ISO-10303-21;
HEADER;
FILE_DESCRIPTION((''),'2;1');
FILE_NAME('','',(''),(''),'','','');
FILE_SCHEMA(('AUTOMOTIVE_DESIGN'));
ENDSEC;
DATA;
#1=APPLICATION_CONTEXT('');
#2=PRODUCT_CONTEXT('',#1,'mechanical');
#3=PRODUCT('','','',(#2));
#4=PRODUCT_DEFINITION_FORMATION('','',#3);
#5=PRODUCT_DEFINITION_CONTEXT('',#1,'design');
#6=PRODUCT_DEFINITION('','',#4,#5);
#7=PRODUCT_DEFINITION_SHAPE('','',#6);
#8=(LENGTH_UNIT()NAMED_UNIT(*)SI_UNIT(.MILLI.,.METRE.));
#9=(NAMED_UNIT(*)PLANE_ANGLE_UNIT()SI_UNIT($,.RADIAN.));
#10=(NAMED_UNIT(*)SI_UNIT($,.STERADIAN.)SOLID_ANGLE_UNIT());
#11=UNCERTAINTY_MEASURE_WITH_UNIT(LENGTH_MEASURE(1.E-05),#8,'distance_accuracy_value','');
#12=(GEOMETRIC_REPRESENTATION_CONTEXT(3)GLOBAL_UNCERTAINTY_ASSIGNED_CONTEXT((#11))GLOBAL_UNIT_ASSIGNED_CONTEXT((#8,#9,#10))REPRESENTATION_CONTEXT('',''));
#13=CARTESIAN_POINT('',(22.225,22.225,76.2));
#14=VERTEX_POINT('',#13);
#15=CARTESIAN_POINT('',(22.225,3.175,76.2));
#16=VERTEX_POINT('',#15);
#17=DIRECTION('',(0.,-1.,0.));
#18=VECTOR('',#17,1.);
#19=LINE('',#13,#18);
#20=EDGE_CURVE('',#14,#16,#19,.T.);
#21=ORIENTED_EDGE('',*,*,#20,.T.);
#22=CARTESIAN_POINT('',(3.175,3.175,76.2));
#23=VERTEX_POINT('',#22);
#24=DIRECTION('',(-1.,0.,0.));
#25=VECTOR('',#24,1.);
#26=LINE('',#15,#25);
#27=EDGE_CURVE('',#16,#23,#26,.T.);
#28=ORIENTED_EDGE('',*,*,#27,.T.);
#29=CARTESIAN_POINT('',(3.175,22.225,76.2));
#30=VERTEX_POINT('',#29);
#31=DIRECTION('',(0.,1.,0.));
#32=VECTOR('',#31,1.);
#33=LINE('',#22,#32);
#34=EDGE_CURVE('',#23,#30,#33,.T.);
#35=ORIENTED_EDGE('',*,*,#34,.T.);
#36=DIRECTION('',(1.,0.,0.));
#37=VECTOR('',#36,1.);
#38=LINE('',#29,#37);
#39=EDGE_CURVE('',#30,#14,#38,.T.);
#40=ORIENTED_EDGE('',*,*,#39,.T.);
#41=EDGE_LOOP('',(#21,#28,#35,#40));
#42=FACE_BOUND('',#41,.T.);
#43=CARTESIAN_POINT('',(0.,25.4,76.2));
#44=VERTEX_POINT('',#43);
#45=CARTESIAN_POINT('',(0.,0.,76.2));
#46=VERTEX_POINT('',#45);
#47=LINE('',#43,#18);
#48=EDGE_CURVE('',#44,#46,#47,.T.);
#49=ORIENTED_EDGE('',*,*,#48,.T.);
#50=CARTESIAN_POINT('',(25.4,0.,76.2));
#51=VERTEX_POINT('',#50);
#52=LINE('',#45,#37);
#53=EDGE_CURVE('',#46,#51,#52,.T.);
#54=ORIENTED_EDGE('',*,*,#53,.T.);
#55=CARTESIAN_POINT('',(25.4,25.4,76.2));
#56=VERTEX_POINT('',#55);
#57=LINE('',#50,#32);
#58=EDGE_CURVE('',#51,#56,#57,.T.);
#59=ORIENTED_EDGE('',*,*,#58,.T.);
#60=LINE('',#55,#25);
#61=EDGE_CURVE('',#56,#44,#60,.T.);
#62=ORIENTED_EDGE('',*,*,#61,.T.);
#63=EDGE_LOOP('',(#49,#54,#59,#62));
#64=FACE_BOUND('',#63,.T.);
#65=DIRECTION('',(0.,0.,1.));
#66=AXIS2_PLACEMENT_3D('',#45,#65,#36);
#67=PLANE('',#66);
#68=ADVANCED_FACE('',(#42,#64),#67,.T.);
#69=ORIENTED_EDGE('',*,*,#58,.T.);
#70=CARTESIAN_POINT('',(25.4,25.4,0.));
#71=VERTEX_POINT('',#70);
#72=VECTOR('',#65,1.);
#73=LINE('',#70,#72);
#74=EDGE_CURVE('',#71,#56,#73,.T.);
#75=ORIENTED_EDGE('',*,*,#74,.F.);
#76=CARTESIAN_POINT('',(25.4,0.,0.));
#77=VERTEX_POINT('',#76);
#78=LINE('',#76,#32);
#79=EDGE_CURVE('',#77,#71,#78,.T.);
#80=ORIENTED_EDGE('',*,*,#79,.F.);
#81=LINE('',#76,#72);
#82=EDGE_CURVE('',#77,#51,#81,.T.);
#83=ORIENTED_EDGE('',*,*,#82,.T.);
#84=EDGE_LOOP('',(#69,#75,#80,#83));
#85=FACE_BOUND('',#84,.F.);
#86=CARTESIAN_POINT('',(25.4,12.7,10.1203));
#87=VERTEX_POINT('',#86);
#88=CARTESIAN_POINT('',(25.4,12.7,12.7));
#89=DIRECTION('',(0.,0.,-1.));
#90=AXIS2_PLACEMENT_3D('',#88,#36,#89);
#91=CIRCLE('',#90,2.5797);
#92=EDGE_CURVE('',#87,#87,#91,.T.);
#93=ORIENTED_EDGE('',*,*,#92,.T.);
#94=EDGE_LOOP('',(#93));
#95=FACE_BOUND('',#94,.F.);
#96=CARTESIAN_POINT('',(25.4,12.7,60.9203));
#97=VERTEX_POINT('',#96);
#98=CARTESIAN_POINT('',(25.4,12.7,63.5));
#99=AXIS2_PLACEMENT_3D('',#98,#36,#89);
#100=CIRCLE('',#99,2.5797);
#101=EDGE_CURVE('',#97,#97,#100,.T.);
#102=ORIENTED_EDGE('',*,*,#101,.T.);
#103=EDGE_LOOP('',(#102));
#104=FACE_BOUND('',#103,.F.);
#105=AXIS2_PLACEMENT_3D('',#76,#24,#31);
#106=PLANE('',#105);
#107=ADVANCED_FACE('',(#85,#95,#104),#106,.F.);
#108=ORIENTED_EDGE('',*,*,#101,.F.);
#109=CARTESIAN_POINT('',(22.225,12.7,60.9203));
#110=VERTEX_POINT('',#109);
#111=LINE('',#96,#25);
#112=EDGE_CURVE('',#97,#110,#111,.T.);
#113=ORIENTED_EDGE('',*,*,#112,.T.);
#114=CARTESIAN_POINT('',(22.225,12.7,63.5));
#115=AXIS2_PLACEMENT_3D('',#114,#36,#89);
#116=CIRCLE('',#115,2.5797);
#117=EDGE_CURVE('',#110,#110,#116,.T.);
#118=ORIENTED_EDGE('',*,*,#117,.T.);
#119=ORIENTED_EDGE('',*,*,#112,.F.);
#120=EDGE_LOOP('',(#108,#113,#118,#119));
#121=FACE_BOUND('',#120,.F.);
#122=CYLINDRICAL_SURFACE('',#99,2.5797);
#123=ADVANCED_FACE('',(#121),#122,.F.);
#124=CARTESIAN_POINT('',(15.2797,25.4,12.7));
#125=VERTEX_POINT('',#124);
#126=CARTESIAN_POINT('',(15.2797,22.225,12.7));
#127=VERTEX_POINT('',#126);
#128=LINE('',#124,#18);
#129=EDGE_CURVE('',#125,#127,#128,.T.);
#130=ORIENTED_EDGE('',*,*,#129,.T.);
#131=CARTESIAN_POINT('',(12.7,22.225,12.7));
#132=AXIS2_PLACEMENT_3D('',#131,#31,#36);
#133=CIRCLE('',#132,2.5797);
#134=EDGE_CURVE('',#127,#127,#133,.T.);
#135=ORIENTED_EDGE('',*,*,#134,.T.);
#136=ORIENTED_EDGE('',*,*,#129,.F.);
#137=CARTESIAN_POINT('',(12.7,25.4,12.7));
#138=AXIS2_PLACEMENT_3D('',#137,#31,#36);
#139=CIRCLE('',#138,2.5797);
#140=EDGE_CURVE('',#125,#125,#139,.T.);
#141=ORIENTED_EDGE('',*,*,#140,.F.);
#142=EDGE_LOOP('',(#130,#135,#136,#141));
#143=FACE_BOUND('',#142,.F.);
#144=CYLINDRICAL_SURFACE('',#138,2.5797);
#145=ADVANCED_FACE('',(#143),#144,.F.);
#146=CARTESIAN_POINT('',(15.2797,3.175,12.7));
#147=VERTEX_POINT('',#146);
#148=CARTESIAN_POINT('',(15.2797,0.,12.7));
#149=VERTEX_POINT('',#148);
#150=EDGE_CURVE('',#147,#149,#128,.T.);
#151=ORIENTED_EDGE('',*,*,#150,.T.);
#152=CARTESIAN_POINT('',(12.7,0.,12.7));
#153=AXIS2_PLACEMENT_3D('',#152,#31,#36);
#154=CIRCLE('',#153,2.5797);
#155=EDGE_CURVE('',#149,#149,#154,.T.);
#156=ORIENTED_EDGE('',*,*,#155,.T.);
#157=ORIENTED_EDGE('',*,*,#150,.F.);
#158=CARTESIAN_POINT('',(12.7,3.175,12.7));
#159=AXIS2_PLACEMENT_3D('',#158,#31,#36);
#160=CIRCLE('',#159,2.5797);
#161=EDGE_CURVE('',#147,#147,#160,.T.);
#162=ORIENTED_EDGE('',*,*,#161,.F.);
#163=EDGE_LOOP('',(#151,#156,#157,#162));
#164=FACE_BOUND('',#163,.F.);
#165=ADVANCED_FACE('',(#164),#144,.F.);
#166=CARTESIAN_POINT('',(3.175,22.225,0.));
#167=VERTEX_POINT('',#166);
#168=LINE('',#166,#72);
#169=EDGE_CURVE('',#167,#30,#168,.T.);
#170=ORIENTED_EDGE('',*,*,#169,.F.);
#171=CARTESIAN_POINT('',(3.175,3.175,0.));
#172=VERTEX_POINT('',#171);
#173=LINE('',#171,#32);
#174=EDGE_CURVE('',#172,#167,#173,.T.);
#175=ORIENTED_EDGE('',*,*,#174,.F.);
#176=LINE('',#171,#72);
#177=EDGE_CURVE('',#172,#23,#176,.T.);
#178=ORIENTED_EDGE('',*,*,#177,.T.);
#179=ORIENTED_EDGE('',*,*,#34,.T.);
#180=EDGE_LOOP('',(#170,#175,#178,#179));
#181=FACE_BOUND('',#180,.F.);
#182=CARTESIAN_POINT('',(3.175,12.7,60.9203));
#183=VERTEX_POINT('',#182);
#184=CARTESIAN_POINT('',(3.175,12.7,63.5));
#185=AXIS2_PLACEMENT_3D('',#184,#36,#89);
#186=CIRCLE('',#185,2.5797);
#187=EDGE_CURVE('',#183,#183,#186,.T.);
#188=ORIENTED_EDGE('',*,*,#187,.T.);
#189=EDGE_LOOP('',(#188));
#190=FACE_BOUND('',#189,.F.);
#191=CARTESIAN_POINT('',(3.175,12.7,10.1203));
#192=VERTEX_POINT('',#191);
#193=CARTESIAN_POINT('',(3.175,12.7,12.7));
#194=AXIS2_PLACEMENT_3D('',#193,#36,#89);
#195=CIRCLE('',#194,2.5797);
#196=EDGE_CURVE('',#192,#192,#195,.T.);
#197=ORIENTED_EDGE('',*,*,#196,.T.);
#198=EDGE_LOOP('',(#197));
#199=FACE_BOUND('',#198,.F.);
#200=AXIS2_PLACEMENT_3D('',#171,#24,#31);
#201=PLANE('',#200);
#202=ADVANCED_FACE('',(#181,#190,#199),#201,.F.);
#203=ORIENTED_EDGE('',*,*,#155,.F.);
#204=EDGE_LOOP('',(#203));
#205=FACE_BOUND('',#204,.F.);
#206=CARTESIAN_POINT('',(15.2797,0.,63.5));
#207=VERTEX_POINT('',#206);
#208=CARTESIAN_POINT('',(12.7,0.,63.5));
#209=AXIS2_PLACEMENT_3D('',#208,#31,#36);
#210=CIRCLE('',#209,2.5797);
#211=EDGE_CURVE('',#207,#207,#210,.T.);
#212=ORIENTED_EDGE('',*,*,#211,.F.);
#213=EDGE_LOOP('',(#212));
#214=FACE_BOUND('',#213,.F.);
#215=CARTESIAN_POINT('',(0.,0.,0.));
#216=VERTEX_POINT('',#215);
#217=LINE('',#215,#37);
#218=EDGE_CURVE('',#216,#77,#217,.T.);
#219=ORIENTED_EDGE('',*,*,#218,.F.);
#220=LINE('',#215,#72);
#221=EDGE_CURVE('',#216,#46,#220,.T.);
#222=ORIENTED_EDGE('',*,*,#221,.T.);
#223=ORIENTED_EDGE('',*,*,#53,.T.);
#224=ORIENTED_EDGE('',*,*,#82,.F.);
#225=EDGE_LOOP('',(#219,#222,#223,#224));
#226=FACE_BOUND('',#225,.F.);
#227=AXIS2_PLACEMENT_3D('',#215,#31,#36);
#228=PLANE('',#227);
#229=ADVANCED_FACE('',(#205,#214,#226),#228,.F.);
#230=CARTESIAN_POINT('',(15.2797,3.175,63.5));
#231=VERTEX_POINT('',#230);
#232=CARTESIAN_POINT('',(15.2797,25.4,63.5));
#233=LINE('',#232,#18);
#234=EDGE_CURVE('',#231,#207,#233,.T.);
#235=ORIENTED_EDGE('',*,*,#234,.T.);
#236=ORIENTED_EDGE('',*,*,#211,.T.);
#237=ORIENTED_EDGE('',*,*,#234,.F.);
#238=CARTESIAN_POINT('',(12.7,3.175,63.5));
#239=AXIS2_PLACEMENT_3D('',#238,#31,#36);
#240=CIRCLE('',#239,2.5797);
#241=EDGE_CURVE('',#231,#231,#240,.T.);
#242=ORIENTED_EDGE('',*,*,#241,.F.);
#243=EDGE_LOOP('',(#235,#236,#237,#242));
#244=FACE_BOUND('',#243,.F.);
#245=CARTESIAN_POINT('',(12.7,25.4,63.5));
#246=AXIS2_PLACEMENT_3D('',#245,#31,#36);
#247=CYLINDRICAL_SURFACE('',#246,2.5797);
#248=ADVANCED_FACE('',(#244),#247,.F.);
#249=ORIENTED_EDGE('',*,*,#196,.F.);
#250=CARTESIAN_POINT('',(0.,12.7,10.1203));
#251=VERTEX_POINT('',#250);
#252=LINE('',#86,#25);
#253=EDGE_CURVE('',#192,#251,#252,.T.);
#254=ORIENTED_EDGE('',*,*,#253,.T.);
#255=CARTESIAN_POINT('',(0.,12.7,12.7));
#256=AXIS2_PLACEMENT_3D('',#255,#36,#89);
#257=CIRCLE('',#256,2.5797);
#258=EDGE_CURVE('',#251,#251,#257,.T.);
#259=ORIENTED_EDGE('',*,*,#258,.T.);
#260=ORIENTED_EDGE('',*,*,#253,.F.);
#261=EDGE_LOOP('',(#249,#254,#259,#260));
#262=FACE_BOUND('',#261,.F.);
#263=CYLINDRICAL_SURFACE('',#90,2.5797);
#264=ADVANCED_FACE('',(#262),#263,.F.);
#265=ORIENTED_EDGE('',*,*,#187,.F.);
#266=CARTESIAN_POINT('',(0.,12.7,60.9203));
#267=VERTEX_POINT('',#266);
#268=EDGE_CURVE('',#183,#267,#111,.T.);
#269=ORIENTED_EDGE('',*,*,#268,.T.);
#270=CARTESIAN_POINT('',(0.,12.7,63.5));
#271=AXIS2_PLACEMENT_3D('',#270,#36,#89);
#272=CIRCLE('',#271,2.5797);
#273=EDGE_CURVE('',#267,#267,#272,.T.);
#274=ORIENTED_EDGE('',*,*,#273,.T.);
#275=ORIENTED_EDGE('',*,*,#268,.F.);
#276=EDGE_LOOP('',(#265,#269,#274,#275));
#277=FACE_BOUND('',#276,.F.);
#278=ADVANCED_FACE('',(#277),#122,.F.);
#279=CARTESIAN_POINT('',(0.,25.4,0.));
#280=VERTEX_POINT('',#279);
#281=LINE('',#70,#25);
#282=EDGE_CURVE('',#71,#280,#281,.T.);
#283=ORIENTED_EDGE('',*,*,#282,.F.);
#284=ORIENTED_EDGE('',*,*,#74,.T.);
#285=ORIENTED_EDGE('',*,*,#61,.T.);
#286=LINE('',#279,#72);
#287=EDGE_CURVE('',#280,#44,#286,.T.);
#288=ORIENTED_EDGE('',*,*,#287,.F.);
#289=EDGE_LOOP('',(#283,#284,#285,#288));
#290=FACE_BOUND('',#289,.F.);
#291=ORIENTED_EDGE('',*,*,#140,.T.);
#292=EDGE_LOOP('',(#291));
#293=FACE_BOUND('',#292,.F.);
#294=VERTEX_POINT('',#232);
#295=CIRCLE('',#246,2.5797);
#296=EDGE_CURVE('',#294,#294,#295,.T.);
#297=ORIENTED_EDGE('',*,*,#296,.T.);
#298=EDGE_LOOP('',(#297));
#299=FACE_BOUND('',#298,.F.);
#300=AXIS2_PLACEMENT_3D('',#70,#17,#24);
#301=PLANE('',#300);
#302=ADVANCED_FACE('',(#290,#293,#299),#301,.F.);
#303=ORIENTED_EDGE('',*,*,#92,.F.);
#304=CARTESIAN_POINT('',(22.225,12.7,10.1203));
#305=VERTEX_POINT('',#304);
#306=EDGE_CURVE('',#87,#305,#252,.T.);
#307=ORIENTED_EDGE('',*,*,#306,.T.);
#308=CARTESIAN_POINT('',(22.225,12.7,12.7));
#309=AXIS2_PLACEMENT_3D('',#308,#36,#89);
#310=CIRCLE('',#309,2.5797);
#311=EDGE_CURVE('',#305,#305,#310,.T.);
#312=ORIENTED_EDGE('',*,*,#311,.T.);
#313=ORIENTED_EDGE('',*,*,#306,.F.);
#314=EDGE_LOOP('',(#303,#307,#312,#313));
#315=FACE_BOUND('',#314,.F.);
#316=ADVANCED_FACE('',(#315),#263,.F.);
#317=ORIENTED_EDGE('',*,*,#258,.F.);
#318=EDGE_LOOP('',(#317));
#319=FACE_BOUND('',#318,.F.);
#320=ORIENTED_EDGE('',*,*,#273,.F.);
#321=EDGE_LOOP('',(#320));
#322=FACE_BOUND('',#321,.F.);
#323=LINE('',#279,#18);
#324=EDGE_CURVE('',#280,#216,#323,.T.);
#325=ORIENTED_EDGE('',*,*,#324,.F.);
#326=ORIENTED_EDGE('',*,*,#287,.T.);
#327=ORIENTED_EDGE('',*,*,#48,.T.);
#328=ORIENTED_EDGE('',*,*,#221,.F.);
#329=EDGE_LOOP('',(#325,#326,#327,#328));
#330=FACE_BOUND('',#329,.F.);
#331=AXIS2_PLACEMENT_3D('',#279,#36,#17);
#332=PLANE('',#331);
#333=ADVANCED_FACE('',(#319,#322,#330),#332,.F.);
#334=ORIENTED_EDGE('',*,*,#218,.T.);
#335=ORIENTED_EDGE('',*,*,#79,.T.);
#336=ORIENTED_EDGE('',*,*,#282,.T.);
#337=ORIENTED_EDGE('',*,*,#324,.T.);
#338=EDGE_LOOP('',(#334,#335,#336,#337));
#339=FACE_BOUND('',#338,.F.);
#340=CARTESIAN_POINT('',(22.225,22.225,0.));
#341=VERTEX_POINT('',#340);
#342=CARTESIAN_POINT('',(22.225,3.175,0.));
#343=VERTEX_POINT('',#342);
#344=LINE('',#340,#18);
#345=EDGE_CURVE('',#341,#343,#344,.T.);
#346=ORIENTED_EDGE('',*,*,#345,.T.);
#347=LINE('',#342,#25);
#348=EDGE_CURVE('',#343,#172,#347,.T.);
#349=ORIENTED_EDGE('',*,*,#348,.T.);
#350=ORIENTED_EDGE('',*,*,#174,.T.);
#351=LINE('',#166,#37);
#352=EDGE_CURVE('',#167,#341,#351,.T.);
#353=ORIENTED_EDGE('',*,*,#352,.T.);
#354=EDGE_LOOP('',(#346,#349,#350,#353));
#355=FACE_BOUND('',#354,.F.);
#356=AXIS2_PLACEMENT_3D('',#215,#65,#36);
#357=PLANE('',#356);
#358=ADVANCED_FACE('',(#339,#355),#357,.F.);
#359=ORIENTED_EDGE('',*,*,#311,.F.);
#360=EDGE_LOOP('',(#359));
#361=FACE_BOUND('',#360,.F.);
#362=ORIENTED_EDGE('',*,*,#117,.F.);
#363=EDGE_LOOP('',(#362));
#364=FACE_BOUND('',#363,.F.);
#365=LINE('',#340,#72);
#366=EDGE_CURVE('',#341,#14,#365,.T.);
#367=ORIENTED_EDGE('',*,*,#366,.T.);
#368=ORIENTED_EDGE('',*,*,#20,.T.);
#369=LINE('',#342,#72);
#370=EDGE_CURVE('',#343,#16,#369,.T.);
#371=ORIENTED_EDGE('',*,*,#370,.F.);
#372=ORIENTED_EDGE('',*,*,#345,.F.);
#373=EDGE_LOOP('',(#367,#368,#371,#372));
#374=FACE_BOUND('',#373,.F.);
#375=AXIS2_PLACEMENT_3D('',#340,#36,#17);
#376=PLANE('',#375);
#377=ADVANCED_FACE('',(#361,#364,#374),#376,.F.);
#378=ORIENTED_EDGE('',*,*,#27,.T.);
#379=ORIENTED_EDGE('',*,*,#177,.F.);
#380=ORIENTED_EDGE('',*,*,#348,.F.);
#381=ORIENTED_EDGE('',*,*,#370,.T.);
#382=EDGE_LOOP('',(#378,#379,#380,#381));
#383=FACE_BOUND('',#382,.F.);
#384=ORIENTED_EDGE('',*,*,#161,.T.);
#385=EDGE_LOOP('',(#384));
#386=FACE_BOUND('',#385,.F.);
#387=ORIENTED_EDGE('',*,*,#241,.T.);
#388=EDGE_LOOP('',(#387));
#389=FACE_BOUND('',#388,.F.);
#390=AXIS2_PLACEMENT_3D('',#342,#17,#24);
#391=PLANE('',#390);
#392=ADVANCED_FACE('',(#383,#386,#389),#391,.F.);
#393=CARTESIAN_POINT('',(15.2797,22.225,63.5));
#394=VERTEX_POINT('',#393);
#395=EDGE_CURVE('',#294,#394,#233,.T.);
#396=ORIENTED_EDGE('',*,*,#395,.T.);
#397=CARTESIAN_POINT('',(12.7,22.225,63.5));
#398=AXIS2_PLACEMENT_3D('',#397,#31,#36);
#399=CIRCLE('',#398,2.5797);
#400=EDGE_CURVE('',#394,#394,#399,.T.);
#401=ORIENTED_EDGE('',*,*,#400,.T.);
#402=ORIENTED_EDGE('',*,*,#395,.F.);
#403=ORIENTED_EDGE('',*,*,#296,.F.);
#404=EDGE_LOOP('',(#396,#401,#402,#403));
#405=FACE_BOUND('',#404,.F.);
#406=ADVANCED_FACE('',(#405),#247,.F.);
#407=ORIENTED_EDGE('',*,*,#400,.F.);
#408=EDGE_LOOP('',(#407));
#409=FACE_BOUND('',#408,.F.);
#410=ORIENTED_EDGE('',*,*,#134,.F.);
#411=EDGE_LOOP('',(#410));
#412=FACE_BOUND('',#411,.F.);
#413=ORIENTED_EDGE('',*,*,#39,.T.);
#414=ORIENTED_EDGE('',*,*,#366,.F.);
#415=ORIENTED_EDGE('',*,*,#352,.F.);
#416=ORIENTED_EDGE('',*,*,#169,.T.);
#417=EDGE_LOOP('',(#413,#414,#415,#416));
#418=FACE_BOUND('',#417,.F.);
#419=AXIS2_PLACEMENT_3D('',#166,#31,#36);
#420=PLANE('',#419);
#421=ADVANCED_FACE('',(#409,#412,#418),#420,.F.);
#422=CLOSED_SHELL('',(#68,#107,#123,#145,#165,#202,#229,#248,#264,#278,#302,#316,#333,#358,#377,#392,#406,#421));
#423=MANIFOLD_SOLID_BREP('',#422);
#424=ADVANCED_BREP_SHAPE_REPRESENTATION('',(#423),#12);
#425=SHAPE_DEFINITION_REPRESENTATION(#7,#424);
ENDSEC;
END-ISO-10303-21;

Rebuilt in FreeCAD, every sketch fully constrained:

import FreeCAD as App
import Part
import Sketcher
from FreeCAD import Vector
Q = App.Units.Quantity

doc = App.newDocument("Part")
body = doc.addObject("PartDesign::Body", "Body")

sketch1 = body.newObject("Sketcher::SketchObject", "Sketch")
sketch1.AttachmentSupport = (doc.getObject("XY_Plane"), [""])
sketch1.MapMode = "FlatFace"
sketch1.addGeometry(Part.LineSegment(Vector(0, 25, 0), Vector(0, 0, 0)), False)
sketch1.addGeometry(Part.LineSegment(Vector(0, 0, 0), Vector(25, 0, 0)), False)
sketch1.addGeometry(Part.LineSegment(Vector(25, 0, 0), Vector(25, 25, 0)), False)
sketch1.addGeometry(Part.LineSegment(Vector(25, 25, 0), Vector(0, 25, 0)), False)
sketch1.addGeometry(Part.LineSegment(Vector(3, 3, 0), Vector(3, 22, 0)), False)
sketch1.addGeometry(Part.LineSegment(Vector(3, 22, 0), Vector(22, 22, 0)), False)
sketch1.addGeometry(Part.LineSegment(Vector(22, 22, 0), Vector(22, 3, 0)), False)
sketch1.addGeometry(Part.LineSegment(Vector(22, 3, 0), Vector(3, 3, 0)), False)
sketch1.addConstraint(Sketcher.Constraint("Coincident", 0, 2, 1, 1))
sketch1.addConstraint(Sketcher.Constraint("Coincident", 1, 2, 2, 1))
sketch1.addConstraint(Sketcher.Constraint("Coincident", 2, 2, 3, 1))
sketch1.addConstraint(Sketcher.Constraint("Coincident", 3, 2, 0, 1))
sketch1.addConstraint(Sketcher.Constraint("Coincident", 4, 2, 5, 1))
sketch1.addConstraint(Sketcher.Constraint("Coincident", 5, 2, 6, 1))
sketch1.addConstraint(Sketcher.Constraint("Coincident", 6, 2, 7, 1))
sketch1.addConstraint(Sketcher.Constraint("Coincident", 7, 2, 4, 1))
sketch1.addConstraint(Sketcher.Constraint("Vertical", 0))
sketch1.addConstraint(Sketcher.Constraint("Horizontal", 1))
sketch1.addConstraint(Sketcher.Constraint("Vertical", 2))
sketch1.addConstraint(Sketcher.Constraint("Horizontal", 3))
sketch1.addConstraint(Sketcher.Constraint("Vertical", 4))
sketch1.addConstraint(Sketcher.Constraint("Horizontal", 5))
sketch1.addConstraint(Sketcher.Constraint("Vertical", 6))
sketch1.addConstraint(Sketcher.Constraint("Horizontal", 7))
sketch1.addConstraint(Sketcher.Constraint("Coincident", 0, 2, -1, 1))
sketch1.addConstraint(Sketcher.Constraint("Equal", 3, 0))
sketch1.addConstraint(Sketcher.Constraint("Equal", 7, 4))
sketch1.addConstraint(Sketcher.Constraint("DistanceX", 1, 1, 1, 2, Q("1 in")))
sketch1.addConstraint(Sketcher.Constraint("DistanceX", -1, 1, 4, 2, Q("0.125 in")))
sketch1.addConstraint(Sketcher.Constraint("DistanceY", -1, 1, 6, 2, Q("0.125 in")))
sketch1.addConstraint(Sketcher.Constraint("DistanceY", 4, 2, 3, 2, Q("0.125 in")))
pad1 = body.newObject("PartDesign::Pad", "Pad")
pad1.Profile = sketch1
pad1.Length = Q("3 in")

sketch2 = body.newObject("Sketcher::SketchObject", "Sketch001")
sketch2.AttachmentSupport = (doc.getObject("XZ_Plane"), [""])
sketch2.MapMode = "FlatFace"
sketch2.AttachmentOffset = App.Placement(Vector(0, 0, -1 * 25.4), App.Rotation())
sketch2.addGeometry(Part.Circle(Vector(12.7, 63.5, 0), Vector(0, 0, 1), 2.6), False)
sketch2.addGeometry(Part.Circle(Vector(12.7, 12.7, 0), Vector(0, 0, 1), 2.6), False)
sketch2.addConstraint(Sketcher.Constraint("Equal", 0, 1))
sketch2.addConstraint(Sketcher.Constraint("Vertical", 0, 3, 1, 3))
sketch2.addConstraint(Sketcher.Constraint("Diameter", 0, Q("0.203126 in")))
sketch2.addConstraint(Sketcher.Constraint("DistanceX", -1, 1, 0, 3, Q("0.5 in")))
sketch2.addConstraint(Sketcher.Constraint("DistanceY", -1, 1, 1, 3, Q("0.5 in")))
sketch2.addConstraint(Sketcher.Constraint("DistanceY", 1, 3, 0, 3, Q("2 in")))
pocket1 = body.newObject("PartDesign::Pocket", "Pocket")
pocket1.Profile = sketch2
pocket1.Length = Q("3 in")
pocket1.Reversed = True

sketch3 = body.newObject("Sketcher::SketchObject", "Sketch002")
sketch3.AttachmentSupport = (doc.getObject("YZ_Plane"), [""])
sketch3.MapMode = "FlatFace"
sketch3.AttachmentOffset = App.Placement(Vector(0, 0, 1 * 25.4), App.Rotation())
sketch3.addGeometry(Part.Circle(Vector(12.7, 63.5, 0), Vector(0, 0, 1), 2.6), False)
sketch3.addGeometry(Part.Circle(Vector(12.7, 12.7, 0), Vector(0, 0, 1), 2.6), False)
sketch3.addConstraint(Sketcher.Constraint("Equal", 0, 1))
sketch3.addConstraint(Sketcher.Constraint("Vertical", 0, 3, 1, 3))
sketch3.addConstraint(Sketcher.Constraint("Diameter", 0, Q("0.203126 in")))
sketch3.addConstraint(Sketcher.Constraint("DistanceX", -1, 1, 0, 3, Q("0.5 in")))
sketch3.addConstraint(Sketcher.Constraint("DistanceY", -1, 1, 1, 3, Q("0.5 in")))
sketch3.addConstraint(Sketcher.Constraint("DistanceY", 1, 3, 0, 3, Q("2 in")))
pocket2 = body.newObject("PartDesign::Pocket", "Pocket001")
pocket2.Profile = sketch3
pocket2.Length = Q("3 in")

doc.recompute()
